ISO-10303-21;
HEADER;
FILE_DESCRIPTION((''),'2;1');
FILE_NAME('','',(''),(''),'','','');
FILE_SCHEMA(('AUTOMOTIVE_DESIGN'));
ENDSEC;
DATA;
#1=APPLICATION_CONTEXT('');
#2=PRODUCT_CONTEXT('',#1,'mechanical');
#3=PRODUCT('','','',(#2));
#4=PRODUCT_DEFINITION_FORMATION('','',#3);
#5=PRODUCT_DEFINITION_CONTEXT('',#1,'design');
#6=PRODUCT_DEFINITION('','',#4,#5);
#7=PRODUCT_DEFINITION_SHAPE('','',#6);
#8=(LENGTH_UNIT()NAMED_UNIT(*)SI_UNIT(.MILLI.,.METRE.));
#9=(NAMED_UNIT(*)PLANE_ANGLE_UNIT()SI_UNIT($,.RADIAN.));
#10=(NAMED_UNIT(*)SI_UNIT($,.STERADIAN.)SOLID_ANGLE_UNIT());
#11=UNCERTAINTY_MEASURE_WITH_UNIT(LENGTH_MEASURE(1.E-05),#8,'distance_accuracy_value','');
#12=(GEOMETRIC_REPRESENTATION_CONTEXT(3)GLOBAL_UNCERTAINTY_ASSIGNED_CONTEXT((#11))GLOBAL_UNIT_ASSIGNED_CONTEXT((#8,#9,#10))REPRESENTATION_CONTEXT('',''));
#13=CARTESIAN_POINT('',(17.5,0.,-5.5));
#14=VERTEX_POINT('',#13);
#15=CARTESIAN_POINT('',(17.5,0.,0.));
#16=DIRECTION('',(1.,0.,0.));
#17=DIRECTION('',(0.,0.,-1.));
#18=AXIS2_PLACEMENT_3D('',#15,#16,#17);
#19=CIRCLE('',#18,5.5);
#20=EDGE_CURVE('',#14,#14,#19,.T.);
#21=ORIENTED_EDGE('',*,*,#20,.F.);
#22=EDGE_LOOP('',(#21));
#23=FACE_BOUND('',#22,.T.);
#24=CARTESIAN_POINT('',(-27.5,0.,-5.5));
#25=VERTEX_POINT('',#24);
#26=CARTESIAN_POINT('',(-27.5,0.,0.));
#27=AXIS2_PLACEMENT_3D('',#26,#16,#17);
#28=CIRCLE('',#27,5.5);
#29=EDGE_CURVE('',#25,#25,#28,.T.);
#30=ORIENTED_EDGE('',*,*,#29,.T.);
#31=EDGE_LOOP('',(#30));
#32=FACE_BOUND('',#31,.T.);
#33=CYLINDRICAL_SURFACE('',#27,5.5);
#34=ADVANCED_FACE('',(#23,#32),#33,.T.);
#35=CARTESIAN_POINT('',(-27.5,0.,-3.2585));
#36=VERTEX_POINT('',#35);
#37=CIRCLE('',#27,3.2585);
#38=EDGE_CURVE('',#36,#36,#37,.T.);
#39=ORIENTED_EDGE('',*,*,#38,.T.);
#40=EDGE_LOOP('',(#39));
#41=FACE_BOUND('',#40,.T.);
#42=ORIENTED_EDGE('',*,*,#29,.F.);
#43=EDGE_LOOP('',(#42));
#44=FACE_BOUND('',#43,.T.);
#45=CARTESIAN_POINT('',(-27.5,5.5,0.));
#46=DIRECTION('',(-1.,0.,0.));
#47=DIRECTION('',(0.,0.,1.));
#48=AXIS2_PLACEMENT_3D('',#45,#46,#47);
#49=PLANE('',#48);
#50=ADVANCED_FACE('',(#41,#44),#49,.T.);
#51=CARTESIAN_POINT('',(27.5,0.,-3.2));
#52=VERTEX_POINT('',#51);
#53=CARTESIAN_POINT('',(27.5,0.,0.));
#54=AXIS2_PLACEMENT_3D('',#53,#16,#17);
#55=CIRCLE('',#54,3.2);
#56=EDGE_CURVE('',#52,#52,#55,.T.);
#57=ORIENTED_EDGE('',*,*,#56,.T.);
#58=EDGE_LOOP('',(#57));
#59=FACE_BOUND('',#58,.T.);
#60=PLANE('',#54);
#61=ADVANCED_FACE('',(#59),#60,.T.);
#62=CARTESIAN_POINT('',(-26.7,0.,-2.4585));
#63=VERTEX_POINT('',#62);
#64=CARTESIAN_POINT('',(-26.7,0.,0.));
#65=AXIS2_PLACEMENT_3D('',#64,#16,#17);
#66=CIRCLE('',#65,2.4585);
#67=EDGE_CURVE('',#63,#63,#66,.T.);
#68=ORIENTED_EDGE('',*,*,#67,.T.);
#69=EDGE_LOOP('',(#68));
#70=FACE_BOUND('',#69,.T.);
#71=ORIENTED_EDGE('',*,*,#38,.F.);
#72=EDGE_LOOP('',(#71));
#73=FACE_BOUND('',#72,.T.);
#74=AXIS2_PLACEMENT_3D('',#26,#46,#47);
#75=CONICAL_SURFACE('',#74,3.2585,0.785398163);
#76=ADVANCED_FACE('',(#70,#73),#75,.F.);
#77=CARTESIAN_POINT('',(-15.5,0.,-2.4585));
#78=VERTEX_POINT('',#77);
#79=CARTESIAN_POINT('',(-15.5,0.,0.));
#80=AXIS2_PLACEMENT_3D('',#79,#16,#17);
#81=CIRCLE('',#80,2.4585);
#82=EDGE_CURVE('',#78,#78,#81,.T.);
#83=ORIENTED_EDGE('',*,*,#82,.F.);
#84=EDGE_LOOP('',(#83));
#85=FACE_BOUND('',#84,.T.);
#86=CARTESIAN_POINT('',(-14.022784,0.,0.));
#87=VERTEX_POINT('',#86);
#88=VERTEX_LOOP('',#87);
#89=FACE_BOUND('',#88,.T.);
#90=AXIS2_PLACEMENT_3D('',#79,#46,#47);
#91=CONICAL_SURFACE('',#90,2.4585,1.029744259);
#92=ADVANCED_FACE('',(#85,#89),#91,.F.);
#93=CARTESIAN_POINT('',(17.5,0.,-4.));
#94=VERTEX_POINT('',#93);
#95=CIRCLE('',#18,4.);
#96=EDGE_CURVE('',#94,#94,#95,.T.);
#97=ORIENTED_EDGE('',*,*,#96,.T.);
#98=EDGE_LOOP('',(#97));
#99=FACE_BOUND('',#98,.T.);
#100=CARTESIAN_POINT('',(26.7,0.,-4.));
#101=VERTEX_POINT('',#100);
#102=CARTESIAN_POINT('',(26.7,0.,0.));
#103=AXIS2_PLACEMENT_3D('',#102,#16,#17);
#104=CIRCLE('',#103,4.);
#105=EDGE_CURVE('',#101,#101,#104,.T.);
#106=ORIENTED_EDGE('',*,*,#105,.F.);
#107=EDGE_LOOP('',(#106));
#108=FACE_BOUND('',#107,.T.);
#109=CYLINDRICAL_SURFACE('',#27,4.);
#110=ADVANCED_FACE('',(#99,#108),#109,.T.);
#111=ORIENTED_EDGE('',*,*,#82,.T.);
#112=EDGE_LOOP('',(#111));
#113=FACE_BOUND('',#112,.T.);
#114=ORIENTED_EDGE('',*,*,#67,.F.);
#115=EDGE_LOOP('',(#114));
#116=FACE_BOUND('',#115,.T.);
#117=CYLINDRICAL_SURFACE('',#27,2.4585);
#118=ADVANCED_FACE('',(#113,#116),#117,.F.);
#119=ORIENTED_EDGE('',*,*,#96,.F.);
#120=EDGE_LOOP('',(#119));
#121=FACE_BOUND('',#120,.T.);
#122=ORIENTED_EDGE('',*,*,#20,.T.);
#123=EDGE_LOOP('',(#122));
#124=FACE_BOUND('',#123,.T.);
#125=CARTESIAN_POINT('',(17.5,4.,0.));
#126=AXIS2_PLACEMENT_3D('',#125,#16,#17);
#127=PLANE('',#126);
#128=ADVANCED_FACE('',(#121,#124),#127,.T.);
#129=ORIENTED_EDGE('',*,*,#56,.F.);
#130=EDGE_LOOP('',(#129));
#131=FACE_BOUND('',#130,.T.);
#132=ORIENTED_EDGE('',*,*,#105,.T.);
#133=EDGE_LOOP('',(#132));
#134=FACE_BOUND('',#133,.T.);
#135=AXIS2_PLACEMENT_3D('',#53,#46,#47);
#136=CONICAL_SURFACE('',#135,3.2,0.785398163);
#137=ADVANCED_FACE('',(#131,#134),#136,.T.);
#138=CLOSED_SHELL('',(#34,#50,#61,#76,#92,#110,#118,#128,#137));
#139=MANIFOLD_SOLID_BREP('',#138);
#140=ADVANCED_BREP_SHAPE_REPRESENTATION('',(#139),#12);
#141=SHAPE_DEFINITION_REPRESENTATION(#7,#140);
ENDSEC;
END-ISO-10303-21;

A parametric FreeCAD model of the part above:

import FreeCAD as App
import Part
import Sketcher
from FreeCAD import Vector
Q = App.Units.Quantity

doc = App.newDocument("Part")
body = doc.addObject("PartDesign::Body", "Body")

sketch1 = doc.addObject("Sketcher::SketchObject", "Sketch")
body.addObject(sketch1)
sketch1.AttachmentSupport = (doc.XY_Plane, [""])
sketch1.MapMode = "FlatFace"
sketch1.addGeometry(Part.LineSegment(Vector(-15.5, 2.5, 0), Vector(-14, 0, 0)), False)
sketch1.addGeometry(Part.LineSegment(Vector(-14, 0, 0), Vector(27.5, 0, 0)), False)
sketch1.addGeometry(Part.LineSegment(Vector(27.5, 0, 0), Vector(27.5, 3.2, 0)), False)
sketch1.addGeometry(Part.LineSegment(Vector(27.5, 3.2, 0), Vector(26.7, 4, 0)), False)
sketch1.addGeometry(Part.LineSegment(Vector(26.7, 4, 0), Vector(17.5, 4, 0)), False)
sketch1.addGeometry(Part.LineSegment(Vector(17.5, 4, 0), Vector(17.5, 5.5, 0)), False)
sketch1.addGeometry(Part.LineSegment(Vector(17.5, 5.5, 0), Vector(-27.5, 5.5, 0)), False)
sketch1.addGeometry(Part.LineSegment(Vector(-27.5, 5.5, 0), Vector(-27.5, 3.3, 0)), False)
sketch1.addGeometry(Part.LineSegment(Vector(-27.5, 3.3, 0), Vector(-26.7, 2.5, 0)), False)
sketch1.addGeometry(Part.LineSegment(Vector(-26.7, 2.5, 0), Vector(-15.5, 2.5, 0)), False)
sketch1.addConstraint(Sketcher.Constraint("Coincident", 0, 2, 1, 1))
sketch1.addConstraint(Sketcher.Constraint("Coincident", 1, 2, 2, 1))
sketch1.addConstraint(Sketcher.Constraint("Coincident", 2, 2, 3, 1))
sketch1.addConstraint(Sketcher.Constraint("Coincident", 3, 2, 4, 1))
sketch1.addConstraint(Sketcher.Constraint("Coincident", 4, 2, 5, 1))
sketch1.addConstraint(Sketcher.Constraint("Coincident", 5, 2, 6, 1))
sketch1.addConstraint(Sketcher.Constraint("Coincident", 6, 2, 7, 1))
sketch1.addConstraint(Sketcher.Constraint("Coincident", 7, 2, 8, 1))
sketch1.addConstraint(Sketcher.Constraint("Coincident", 8, 2, 9, 1))
sketch1.addConstraint(Sketcher.Constraint("Coincident", 9, 2, 0, 1))
sketch1.addConstraint(Sketcher.Constraint("Horizontal", 1))
sketch1.addConstraint(Sketcher.Constraint("Vertical", 2))
sketch1.addConstraint(Sketcher.Constraint("Horizontal", 4))
sketch1.addConstraint(Sketcher.Constraint("Vertical", 5))
sketch1.addConstraint(Sketcher.Constraint("Horizontal", 6))
sketch1.addConstraint(Sketcher.Constraint("Vertical", 7))
sketch1.addConstraint(Sketcher.Constraint("Horizontal", 9))
sketch1.addConstraint(Sketcher.Constraint("PointOnObject", 0, 2, -1))
sketch1.addConstraint(Sketcher.Constraint("Parallel", 3, 8))
sketch1.addConstraint(Sketcher.Constraint("Equal", 3, 8))
sketch1.addConstraint(Sketcher.Constraint("DistanceX", 6, 2, 6, 1, Q("45 mm")))
sketch1.addConstraint(Sketcher.Constraint("Angle", 0, Q("-59 deg")))
sketch1.addConstraint(Sketcher.Constraint("Angle", 3, Q("135 deg")))
sketch1.addConstraint(Sketcher.Constraint("DistanceX", 4, 2, 4, 1, Q("9.2 mm")))
sketch1.addConstraint(Sketcher.Constraint("DistanceX", 9, 1, 9, 2, Q("11.2 mm")))
sketch1.addConstraint(Sketcher.Constraint("DistanceY", 2, 1, 2, 2, Q("3.2 mm")))
sketch1.addConstraint(Sketcher.Constraint("DistanceY", 5, 1, 5, 2, Q("1.5 mm")))
sketch1.addConstraint(Sketcher.Constraint("DistanceY", -1, 1, 3, 2, Q("4 mm")))
sketch1.addConstraint(Sketcher.Constraint("DistanceX", -1, 1, 1, 2, Q("27.5 mm")))
sketch1.addConstraint(Sketcher.Constraint("DistanceY", 7, 2, 7, 1, Q("2.2415 mm")))
revolution = doc.addObject("PartDesign::Revolution", "Revolution")
body.addObject(revolution)
revolution.Profile = sketch1
revolution.ReferenceAxis = (sketch1, ["H_Axis"])
revolution.Angle = 360

doc.recompute()
